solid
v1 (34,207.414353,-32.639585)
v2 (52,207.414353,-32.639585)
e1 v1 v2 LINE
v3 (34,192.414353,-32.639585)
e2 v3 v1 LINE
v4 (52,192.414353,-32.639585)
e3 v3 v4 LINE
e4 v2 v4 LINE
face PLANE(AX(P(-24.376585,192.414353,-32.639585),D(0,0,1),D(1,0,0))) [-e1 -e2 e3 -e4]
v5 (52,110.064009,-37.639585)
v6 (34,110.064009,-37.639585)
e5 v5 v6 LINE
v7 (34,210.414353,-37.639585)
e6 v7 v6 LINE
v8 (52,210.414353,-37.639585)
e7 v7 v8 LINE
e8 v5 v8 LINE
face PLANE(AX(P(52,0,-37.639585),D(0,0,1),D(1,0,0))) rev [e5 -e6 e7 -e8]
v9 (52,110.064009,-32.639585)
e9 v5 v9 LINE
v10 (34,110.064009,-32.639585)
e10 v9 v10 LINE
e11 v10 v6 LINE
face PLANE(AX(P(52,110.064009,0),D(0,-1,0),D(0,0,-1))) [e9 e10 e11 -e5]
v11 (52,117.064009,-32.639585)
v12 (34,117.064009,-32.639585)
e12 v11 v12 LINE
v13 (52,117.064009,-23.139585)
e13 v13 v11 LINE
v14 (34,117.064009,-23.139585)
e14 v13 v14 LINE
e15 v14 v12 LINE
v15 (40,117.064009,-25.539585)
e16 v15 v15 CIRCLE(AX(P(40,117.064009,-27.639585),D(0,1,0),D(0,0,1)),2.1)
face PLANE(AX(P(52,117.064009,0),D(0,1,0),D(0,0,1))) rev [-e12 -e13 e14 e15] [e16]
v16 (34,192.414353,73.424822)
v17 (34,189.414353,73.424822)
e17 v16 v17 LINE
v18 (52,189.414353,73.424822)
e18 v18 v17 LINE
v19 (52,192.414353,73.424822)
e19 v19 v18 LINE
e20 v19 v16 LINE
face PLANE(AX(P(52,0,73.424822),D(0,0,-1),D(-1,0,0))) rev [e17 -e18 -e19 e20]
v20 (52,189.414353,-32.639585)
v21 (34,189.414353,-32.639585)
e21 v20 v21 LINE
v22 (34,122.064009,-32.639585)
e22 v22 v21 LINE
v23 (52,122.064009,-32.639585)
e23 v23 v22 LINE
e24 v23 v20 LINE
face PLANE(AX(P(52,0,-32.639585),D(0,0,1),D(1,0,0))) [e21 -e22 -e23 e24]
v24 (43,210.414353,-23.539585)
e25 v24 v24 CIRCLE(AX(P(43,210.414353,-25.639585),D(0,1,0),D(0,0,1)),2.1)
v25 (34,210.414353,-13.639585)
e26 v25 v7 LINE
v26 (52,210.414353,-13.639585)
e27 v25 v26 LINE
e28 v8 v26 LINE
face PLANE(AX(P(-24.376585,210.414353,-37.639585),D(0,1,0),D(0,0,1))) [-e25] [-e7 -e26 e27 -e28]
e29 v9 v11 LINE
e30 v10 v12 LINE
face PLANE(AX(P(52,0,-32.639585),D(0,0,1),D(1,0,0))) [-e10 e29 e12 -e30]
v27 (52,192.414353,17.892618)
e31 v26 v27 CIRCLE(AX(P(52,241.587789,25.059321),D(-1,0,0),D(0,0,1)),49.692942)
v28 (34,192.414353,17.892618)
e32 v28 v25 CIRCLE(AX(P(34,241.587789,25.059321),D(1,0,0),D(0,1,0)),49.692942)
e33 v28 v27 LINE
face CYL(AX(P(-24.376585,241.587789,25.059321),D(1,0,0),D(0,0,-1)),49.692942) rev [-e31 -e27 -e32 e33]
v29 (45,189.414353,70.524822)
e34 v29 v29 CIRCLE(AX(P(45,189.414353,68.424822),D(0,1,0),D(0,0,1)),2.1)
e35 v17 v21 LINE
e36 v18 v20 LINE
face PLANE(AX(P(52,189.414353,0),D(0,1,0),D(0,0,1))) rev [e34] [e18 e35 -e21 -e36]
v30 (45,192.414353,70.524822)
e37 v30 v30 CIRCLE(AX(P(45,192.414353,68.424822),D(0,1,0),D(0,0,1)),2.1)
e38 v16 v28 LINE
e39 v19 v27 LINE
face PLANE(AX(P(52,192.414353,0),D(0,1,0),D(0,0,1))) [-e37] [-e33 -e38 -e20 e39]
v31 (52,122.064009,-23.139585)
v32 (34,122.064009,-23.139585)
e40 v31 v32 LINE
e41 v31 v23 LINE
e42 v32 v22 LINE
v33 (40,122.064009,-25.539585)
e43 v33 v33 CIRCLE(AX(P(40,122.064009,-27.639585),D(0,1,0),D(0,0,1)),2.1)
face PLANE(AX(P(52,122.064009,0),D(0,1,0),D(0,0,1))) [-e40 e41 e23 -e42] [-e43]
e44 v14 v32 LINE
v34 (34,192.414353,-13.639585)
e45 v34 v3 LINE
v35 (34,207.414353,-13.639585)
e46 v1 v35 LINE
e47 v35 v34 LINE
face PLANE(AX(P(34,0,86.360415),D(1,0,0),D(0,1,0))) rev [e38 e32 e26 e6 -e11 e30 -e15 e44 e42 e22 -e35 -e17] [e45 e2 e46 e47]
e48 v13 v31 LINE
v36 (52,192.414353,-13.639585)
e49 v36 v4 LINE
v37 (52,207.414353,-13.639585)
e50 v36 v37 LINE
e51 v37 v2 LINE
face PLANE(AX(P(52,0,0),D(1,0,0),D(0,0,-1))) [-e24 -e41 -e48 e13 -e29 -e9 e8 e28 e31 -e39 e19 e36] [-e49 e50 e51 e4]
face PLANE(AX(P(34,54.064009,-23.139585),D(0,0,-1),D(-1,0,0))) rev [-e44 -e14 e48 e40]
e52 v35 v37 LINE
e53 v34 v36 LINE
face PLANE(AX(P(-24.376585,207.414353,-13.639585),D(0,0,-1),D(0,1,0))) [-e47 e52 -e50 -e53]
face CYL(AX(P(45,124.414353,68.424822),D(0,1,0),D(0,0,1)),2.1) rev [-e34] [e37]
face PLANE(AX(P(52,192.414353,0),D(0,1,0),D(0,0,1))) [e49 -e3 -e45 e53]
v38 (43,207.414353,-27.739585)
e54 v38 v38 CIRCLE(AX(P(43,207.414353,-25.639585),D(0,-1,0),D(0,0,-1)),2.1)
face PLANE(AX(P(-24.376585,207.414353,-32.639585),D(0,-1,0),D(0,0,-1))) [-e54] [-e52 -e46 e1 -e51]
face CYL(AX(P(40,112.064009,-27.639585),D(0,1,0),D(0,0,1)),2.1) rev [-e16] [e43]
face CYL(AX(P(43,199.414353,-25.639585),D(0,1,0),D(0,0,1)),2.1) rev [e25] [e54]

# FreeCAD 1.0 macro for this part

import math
import FreeCAD as App
import Part
import Sketcher
Q = App.Units.Quantity

doc = App.newDocument("Part")
body = doc.addObject("PartDesign::Body", "Body")
body.AllowCompound = True

sketch1 = body.newObject("Sketcher::SketchObject", "Sketch")
sketch1.AttachmentSupport = (doc.getObject("YZ_Plane"), [""])
sketch1.MapMode = "FlatFace"
sketch1.addGeometry([
    Part.LineSegment(App.Vector(192.4, 73.4, 0), App.Vector(189.4, 73.4, 0)),
    Part.LineSegment(App.Vector(189.4, 73.4, 0), App.Vector(189.4, -32.6, 0)),
    Part.LineSegment(App.Vector(189.4, -32.6, 0), App.Vector(122.1, -32.6, 0)),
    Part.LineSegment(App.Vector(122.1, -32.6, 0), App.Vector(122.1, -22.6, 0)),
    Part.LineSegment(App.Vector(122.1, -22.6, 0), App.Vector(117.1, -22.6, 0)),
    Part.LineSegment(App.Vector(117.1, -22.6, 0), App.Vector(117.1, -32.6, 0)),
    Part.LineSegment(App.Vector(117.1, -32.6, 0), App.Vector(110.1, -32.6, 0)),
    Part.LineSegment(App.Vector(110.1, -32.6, 0), App.Vector(110.1, -37.6, 0)),
    Part.LineSegment(App.Vector(110.1, -37.6, 0), App.Vector(192.4, -37.6, 0)),
    Part.LineSegment(App.Vector(192.4, -37.6, 0), App.Vector(192.4, 73.4, 0)),
], False)
sketch1.addConstraint([
    Sketcher.Constraint("Coincident", 0, 2, 1, 1),
    Sketcher.Constraint("Coincident", 1, 2, 2, 1),
    Sketcher.Constraint("Coincident", 2, 2, 3, 1),
    Sketcher.Constraint("Coincident", 3, 2, 4, 1),
    Sketcher.Constraint("Coincident", 4, 2, 5, 1),
    Sketcher.Constraint("Coincident", 5, 2, 6, 1),
    Sketcher.Constraint("Coincident", 6, 2, 7, 1),
    Sketcher.Constraint("Coincident", 7, 2, 8, 1),
    Sketcher.Constraint("Coincident", 8, 2, 9, 1),
    Sketcher.Constraint("Coincident", 9, 2, 0, 1),
    Sketcher.Constraint("Horizontal", 0),
    Sketcher.Constraint("Vertical", 1),
    Sketcher.Constraint("Horizontal", 2),
    Sketcher.Constraint("Vertical", 3),
    Sketcher.Constraint("Horizontal", 4),
    Sketcher.Constraint("Vertical", 5),
    Sketcher.Constraint("Horizontal", 6),
    Sketcher.Constraint("Vertical", 7),
    Sketcher.Constraint("Horizontal", 8),
    Sketcher.Constraint("Vertical", 9),
    Sketcher.Constraint("Horizontal", 2, 2, 5, 2),
    Sketcher.Constraint("Equal", 4, 7),
    Sketcher.Constraint("DistanceX", 0, 2, 0, 1, Q("3 mm")),
    Sketcher.Constraint("DistanceX", 4, 2, 4, 1, Q("5 mm")),
    Sketcher.Constraint("DistanceX", 6, 2, 6, 1, Q("7 mm")),
    Sketcher.Constraint("DistanceY", 3, 1, 3, 2, Q("10 mm")),
    Sketcher.Constraint("DistanceX", 2, 2, 2, 1, Q("67.350344 mm")),
    Sketcher.Constraint("DistanceY", 1, 2, 1, 1, Q("106.064407 mm")),
    Sketcher.Constraint("DistanceY", -1, 1, 0, 2, Q("73.424822 mm")),
    Sketcher.Constraint("DistanceX", -1, 1, 2, 2, Q("122.064009 mm")),
])
pad1 = body.newObject("PartDesign::Pad", "Pad")
pad1.Profile = sketch1
pad1.Length = 52

sketch2 = body.newObject("Sketcher::SketchObject", "Sketch001")
sketch2.AttachmentSupport = (doc.getObject("XZ_Plane"), [""])
sketch2.MapMode = "FlatFace"
sketch2.AttachmentOffset = App.Placement(App.Vector(0, 0, -122.064009), App.Rotation())
sketch2.addGeometry([
    Part.Circle(App.Vector(6, -27, 0), App.Vector(0, 0, 1), 2.1),
    Part.Circle(App.Vector(46, -27.6, 0), App.Vector(0, 0, 1), 2.1),
], False)
sketch2.addConstraint([
    Sketcher.Constraint("Equal", 0, 1),
    Sketcher.Constraint("Diameter", 0, Q("4.2 mm")),
    Sketcher.Constraint("DistanceX", -1, 1, 0, 3, Q("6 mm")),
    Sketcher.Constraint("DistanceX", -1, 1, 1, 3, Q("46 mm")),
    Sketcher.Constraint("DistanceY", 1, 3, 0, 3, Q("0.59 mm")),
    Sketcher.Constraint("DistanceY", 0, 3, -1, 1, Q("27.049585 mm")),
])
pocket1 = body.newObject("PartDesign::Pocket", "Pocket")
pocket1.Profile = sketch2
pocket1.Length = 52
pocket1.Reversed = True

sketch3 = body.newObject("Sketcher::SketchObject", "Sketch002")
sketch3.AttachmentSupport = (doc.getObject("XZ_Plane"), [""])
sketch3.MapMode = "FlatFace"
sketch3.AttachmentOffset = App.Placement(App.Vector(0, 0, -192.414353), App.Rotation())
sketch3.addGeometry([
    Part.Circle(App.Vector(41, 68.4, 0), App.Vector(0, 0, 1), 2.1),
    Part.Circle(App.Vector(11, 68.4, 0), App.Vector(0, 0, 1), 2.1),
], False)
sketch3.addConstraint([
    Sketcher.Constraint("Equal", 0, 1),
    Sketcher.Constraint("Horizontal", 0, 3, 1, 3),
    Sketcher.Constraint("Diameter", 0, Q("4.2 mm")),
    Sketcher.Constraint("DistanceX", -1, 1, 0, 3, Q("41 mm")),
    Sketcher.Constraint("DistanceX", -1, 1, 1, 3, Q("11 mm")),
    Sketcher.Constraint("DistanceY", -1, 1, 0, 3, Q("68.424822 mm")),
])
pocket2 = body.newObject("PartDesign::Pocket", "Pocket001")
pocket2.Profile = sketch3
pocket2.Length = 52
pocket2.Reversed = True

sketch4 = body.newObject("Sketcher::SketchObject", "Sketch003")
sketch4.AttachmentSupport = (doc.getObject("XY_Plane"), [""])
sketch4.MapMode = "FlatFace"
sketch4.AttachmentOffset = App.Placement(App.Vector(0, 0, -37.639585), App.Rotation())
sketch4.addGeometry([
    Part.LineSegment(App.Vector(34, 192, 0), App.Vector(34, 110, 0)),
    Part.LineSegment(App.Vector(34, 110, 0), App.Vector(18, 110, 0)),
    Part.LineSegment(App.Vector(18, 110, 0), App.Vector(18, 192, 0)),
    Part.LineSegment(App.Vector(18, 192, 0), App.Vector(34, 192, 0)),
], False)
sketch4.addConstraint([
    Sketcher.Constraint("Coincident", 0, 2, 1, 1),
    Sketcher.Constraint("Coincident", 1, 2, 2, 1),
    Sketcher.Constraint("Coincident", 2, 2, 3, 1),
    Sketcher.Constraint("Coincident", 3, 2, 0, 1),
    Sketcher.Constraint("Vertical", 0),
    Sketcher.Constraint("Horizontal", 1),
    Sketcher.Constraint("Vertical", 2),
    Sketcher.Constraint("Horizontal", 3),
    Sketcher.Constraint("DistanceX", 1, 2, 1, 1, Q("16 mm")),
    Sketcher.Constraint("DistanceX", -1, 1, 0, 2, Q("34 mm")),
    Sketcher.Constraint("DistanceY", 0, 2, 0, 1, Q("82.350344 mm")),
    Sketcher.Constraint("DistanceY", -1, 1, 0, 2, Q("110.064009 mm")),
])
pocket3 = body.newObject("PartDesign::Pocket", "Pocket002")
pocket3.Profile = sketch4
pocket3.Length = 124
pocket3.Reversed = True

sketch5 = body.newObject("Sketcher::SketchObject", "Sketch004")
sketch5.AttachmentSupport = (doc.getObject("YZ_Plane"), [""])
sketch5.MapMode = "FlatFace"
sketch5.addGeometry([
    Part.LineSegment(App.Vector(210, -38, 0), App.Vector(192, -38, 0)),
    Part.LineSegment(App.Vector(192, -38, 0), App.Vector(192, -33, 0)),
    Part.LineSegment(App.Vector(192, -33, 0), App.Vector(207, -33, 0)),
    Part.LineSegment(App.Vector(207, -33, 0), App.Vector(207, -14, 0)),
    Part.LineSegment(App.Vector(207, -14, 0), App.Vector(192, -14, 0)),
    Part.LineSegment(App.Vector(192, -14, 0), App.Vector(192, 18, 0)),
    Part.ArcOfCircle(Part.Circle(App.Vector(242, 25, 0), App.Vector(0, 0, 1), 50), math.radians(-172), math.radians(-129)),
    Part.LineSegment(App.Vector(210, -14, 0), App.Vector(210, -38, 0)),
], False)
sketch5.addConstraint([
    Sketcher.Constraint("Coincident", 0, 2, 1, 1),
    Sketcher.Constraint("Coincident", 1, 2, 2, 1),
    Sketcher.Constraint("Coincident", 2, 2, 3, 1),
    Sketcher.Constraint("Coincident", 3, 2, 4, 1),
    Sketcher.Constraint("Coincident", 4, 2, 5, 1),
    Sketcher.Constraint("Coincident", 5, 2, 6, 1),
    Sketcher.Constraint("Coincident", 6, 2, 7, 1),
    Sketcher.Constraint("Coincident", 7, 2, 0, 1),
    Sketcher.Constraint("Horizontal", 0),
    Sketcher.Constraint("Vertical", 1),
    Sketcher.Constraint("Horizontal", 2),
    Sketcher.Constraint("Vertical", 3),
    Sketcher.Constraint("Horizontal", 4),
    Sketcher.Constraint("Vertical", 5),
    Sketcher.Constraint("Vertical", 7),
    Sketcher.Constraint("Horizontal", 4, 2, 6, 2),
    Sketcher.Constraint("Vertical", 1, 2, 4, 2),
    Sketcher.Constraint("DistanceX", 0, 2, 0, 1, Q("18 mm")),
    Sketcher.Constraint("DistanceX", 2, 1, 2, 2, Q("15 mm")),
    Sketcher.Constraint("DistanceY", 1, 1, 1, 2, Q("5 mm")),
    Sketcher.Constraint("DistanceY", 3, 1, 3, 2, Q("19 mm")),
    Sketcher.Constraint("Radius", 6, Q("49.692942 mm")),
    Sketcher.Constraint("DistanceY", 5, 1, 5, 2, Q("31.532203 mm")),
    Sketcher.Constraint("DistanceX", -1, 1, 6, 3, Q("241.587789 mm")),
    Sketcher.Constraint("DistanceY", -1, 1, 6, 3, Q("25.059321 mm")),
])
pad2 = body.newObject("PartDesign::Pad", "Pad001")
pad2.Profile = sketch5
pad2.Length = 18

sketch6 = body.newObject("Sketcher::SketchObject", "Sketch005")
sketch6.AttachmentSupport = (doc.getObject("XZ_Plane"), [""])
sketch6.MapMode = "FlatFace"
sketch6.AttachmentOffset = App.Placement(App.Vector(0, 0, -210.414353), App.Rotation())
sketch6.addGeometry(Part.Circle(App.Vector(9, -25.6, 0), App.Vector(0, 0, 1), 2.1), False)
sketch6.addConstraint([
    Sketcher.Constraint("Diameter", 0, Q("4.2 mm")),
    Sketcher.Constraint("DistanceX", -1, 1, 0, 3, Q("9 mm")),
    Sketcher.Constraint("DistanceY", 0, 3, -1, 1, Q("25.639585 mm")),
])
pocket4 = body.newObject("PartDesign::Pocket", "Pocket003")
pocket4.Profile = sketch6
pocket4.Length = 6
pocket4.Reversed = True

sketch7 = body.newObject("Sketcher::SketchObject", "Sketch006")
sketch7.AttachmentSupport = (doc.getObject("YZ_Plane"), [""])
sketch7.MapMode = "FlatFace"
sketch7.AttachmentOffset = App.Placement(App.Vector(0, 0, 52), App.Rotation())
sketch7.addGeometry([
    Part.LineSegment(App.Vector(192, -33, 0), App.Vector(192, -38, 0)),
    Part.LineSegment(App.Vector(192, -38, 0), App.Vector(210, -38, 0)),
    Part.LineSegment(App.Vector(210, -38, 0), App.Vector(210, -14, 0)),
    Part.ArcOfCircle(Part.Circle(App.Vector(242, 25, 0), App.Vector(0, 0, 1), 50), math.radians(-172), math.radians(-129)),
    Part.LineSegment(App.Vector(192, 18, 0), App.Vector(192, -14, 0)),
    Part.LineSegment(App.Vector(192, -14, 0), App.Vector(207, -14, 0)),
    Part.LineSegment(App.Vector(207, -14, 0), App.Vector(207, -33, 0)),
    Part.LineSegment(App.Vector(207, -33, 0), App.Vector(192, -33, 0)),
], False)
sketch7.addConstraint([
    Sketcher.Constraint("Coincident", 0, 2, 1, 1),
    Sketcher.Constraint("Coincident", 1, 2, 2, 1),
    Sketcher.Constraint("Coincident", 2, 2, 3, 2),
    Sketcher.Constraint("Coincident", 3, 1, 4, 1),
    Sketcher.Constraint("Coincident", 4, 2, 5, 1),
    Sketcher.Constraint("Coincident", 5, 2, 6, 1),
    Sketcher.Constraint("Coincident", 6, 2, 7, 1),
    Sketcher.Constraint("Coincident", 7, 2, 0, 1),
    Sketcher.Constraint("Vertical", 0),
    Sketcher.Constraint("Horizontal", 1),
    Sketcher.Constraint("Vertical", 2),
    Sketcher.Constraint("Vertical", 4),
    Sketcher.Constraint("Horizontal", 5),
    Sketcher.Constraint("Vertical", 6),
    Sketcher.Constraint("Horizontal", 7),
    Sketcher.Constraint("Horizontal", 2, 2, 4, 2),
    Sketcher.Constraint("Vertical", 0, 2, 3, 1),
    Sketcher.Constraint("DistanceX", 1, 1, 1, 2, Q("18 mm")),
    Sketcher.Constraint("DistanceX", 5, 1, 5, 2, Q("15 mm")),
    Sketcher.Constraint("DistanceY", 0, 2, 0, 1, Q("5 mm")),
    Sketcher.Constraint("DistanceY", 2, 1, 2, 2, Q("24 mm")),
    Sketcher.Constraint("Radius", 3, Q("49.692942 mm")),
    Sketcher.Constraint("DistanceY", 4, 2, 4, 1, Q("31.532203 mm")),
    Sketcher.Constraint("DistanceX", -1, 1, 3, 3, Q("241.587789 mm")),
    Sketcher.Constraint("DistanceY", -1, 1, 3, 3, Q("25.059321 mm")),
])
pad3 = body.newObject("PartDesign::Pad", "Pad002")
pad3.Profile = sketch7
pad3.Length = 18
pad3.Reversed = True

sketch8 = body.newObject("Sketcher::SketchObject", "Sketch007")
sketch8.AttachmentSupport = (doc.getObject("XZ_Plane"), [""])
sketch8.MapMode = "FlatFace"
sketch8.AttachmentOffset = App.Placement(App.Vector(0, 0, -210.414353), App.Rotation())
sketch8.addGeometry(Part.Circle(App.Vector(43, -25.6, 0), App.Vector(0, 0, 1), 2.1), False)
sketch8.addConstraint([
    Sketcher.Constraint("Diameter", 0, Q("4.2 mm")),
    Sketcher.Constraint("DistanceX", -1, 1, 0, 3, Q("43 mm")),
    Sketcher.Constraint("DistanceY", 0, 3, -1, 1, Q("25.639585 mm")),
])
pocket5 = body.newObject("PartDesign::Pocket", "Pocket004")
pocket5.Profile = sketch8
pocket5.Length = 11
pocket5.Reversed = True

sketch9 = body.newObject("Sketcher::SketchObject", "Sketch008")
sketch9.AttachmentSupport = (doc.getObject("XZ_Plane"), [""])
sketch9.MapMode = "FlatFace"
sketch9.AttachmentOffset = App.Placement(App.Vector(0, 0, -210.414353), App.Rotation())
sketch9.addGeometry([
    Part.LineSegment(App.Vector(-6, -42, 0), App.Vector(-6, 77, 0)),
    Part.LineSegment(App.Vector(-6, 77, 0), App.Vector(25, 77, 0)),
    Part.LineSegment(App.Vector(25, 77, 0), App.Vector(25, -42, 0)),
    Part.LineSegment(App.Vector(25, -42, 0), App.Vector(-6, -42, 0)),
], False)
sketch9.addConstraint([
    Sketcher.Constraint("Coincident", 0, 2, 1, 1),
    Sketcher.Constraint("Coincident", 1, 2, 2, 1),
    Sketcher.Constraint("Coincident", 2, 2, 3, 1),
    Sketcher.Constraint("Coincident", 3, 2, 0, 1),
    Sketcher.Constraint("Vertical", 0),
    Sketcher.Constraint("Horizontal", 1),
    Sketcher.Constraint("Vertical", 2),
    Sketcher.Constraint("Horizontal", 3),
    Sketcher.Constraint("DistanceY", 0, 1, 0, 2, Q("118.81058 mm")),
    Sketcher.Constraint("DistanceX", 1, 1, 1, 2, Q("30.758927 mm")),
    Sketcher.Constraint("DistanceX", -1, 1, 1, 2, Q("24.522652 mm")),
    Sketcher.Constraint("DistanceY", -1, 1, 0, 2, Q("77.080375 mm")),
])
pocket6 = body.newObject("PartDesign::Pocket", "Pocket005")
pocket6.Profile = sketch9
pocket6.Length = 134
pocket6.Reversed = True

sketch10 = body.newObject("Sketcher::SketchObject", "Sketch009")
sketch10.AttachmentSupport = (doc.getObject("XZ_Plane"), [""])
sketch10.MapMode = "FlatFace"
sketch10.AttachmentOffset = App.Placement(App.Vector(0, 0, -122.064009), App.Rotation())
sketch10.addGeometry([
    Part.LineSegment(App.Vector(34, -33, 0), App.Vector(34, -23, 0)),
    Part.LineSegment(App.Vector(34, -23, 0), App.Vector(52, -23, 0)),
    Part.LineSegment(App.Vector(52, -23, 0), App.Vector(52, -33, 0)),
    Part.LineSegment(App.Vector(52, -33, 0), App.Vector(34, -33, 0)),
], False)
sketch10.addConstraint([
    Sketcher.Constraint("Coincident", 0, 2, 1, 1),
    Sketcher.Constraint("Coincident", 1, 2, 2, 1),
    Sketcher.Constraint("Coincident", 2, 2, 3, 1),
    Sketcher.Constraint("Coincident", 3, 2, 0, 1),
    Sketcher.Constraint("Vertical", 0),
    Sketcher.Constraint("Horizontal", 1),
    Sketcher.Constraint("Vertical", 2),
    Sketcher.Constraint("Horizontal", 3),
    Sketcher.Constraint("DistanceX", 1, 1, 1, 2, Q("18 mm")),
    Sketcher.Constraint("DistanceY", 0, 1, 0, 2, Q("10 mm")),
    Sketcher.Constraint("DistanceX", -1, 1, 0, 2, Q("34 mm")),
    Sketcher.Constraint("DistanceY", 0, 2, -1, 1, Q("22.639585 mm")),
])
pad4 = body.newObject("PartDesign::Pad", "Pad003")
pad4.Profile = sketch10
pad4.Length = 5

sketch11 = body.newObject("Sketcher::SketchObject", "Sketch010")
sketch11.AttachmentSupport = (doc.getObject("XZ_Plane"), [""])
sketch11.MapMode = "FlatFace"
sketch11.AttachmentOffset = App.Placement(App.Vector(0, 0, -122.064009), App.Rotation())
sketch11.addGeometry(Part.Circle(App.Vector(40, -27, 0), App.Vector(0, 0, 1), 2.1), False)
sketch11.addConstraint([
    Sketcher.Constraint("Diameter", 0, Q("4.2 mm")),
    Sketcher.Constraint("DistanceX", -1, 1, 0, 3, Q("40 mm")),
    Sketcher.Constraint("DistanceY", 0, 3, -1, 1, Q("27.049585 mm")),
])
pocket7 = body.newObject("PartDesign::Pocket", "Pocket006")
pocket7.Profile = sketch11
pocket7.Length = 10
pocket7.Reversed = True

sketch12 = body.newObject("Sketcher::SketchObject", "Sketch011")
sketch12.AttachmentSupport = (doc.getObject("XZ_Plane"), [""])
sketch12.MapMode = "FlatFace"
sketch12.AttachmentOffset = App.Placement(App.Vector(0, 0, -192.414353), App.Rotation())
sketch12.addGeometry(Part.Circle(App.Vector(41, 68.4, 0), App.Vector(0, 0, 1), 2.1), False)
sketch12.addConstraint([
    Sketcher.Constraint("Diameter", 0, Q("4.2 mm")),
    Sketcher.Constraint("DistanceX", -1, 1, 0, 3, Q("41 mm")),
    Sketcher.Constraint("DistanceY", -1, 1, 0, 3, Q("68.424822 mm")),
])
pad5 = body.newObject("PartDesign::Pad", "Pad004")
pad5.Profile = sketch12
pad5.Length = 3

sketch13 = body.newObject("Sketcher::SketchObject", "Sketch012")
sketch13.AttachmentSupport = (doc.getObject("XZ_Plane"), [""])
sketch13.MapMode = "FlatFace"
sketch13.AttachmentOffset = App.Placement(App.Vector(0, 0, -192.414353), App.Rotation())
sketch13.addGeometry(Part.Circle(App.Vector(45, 68.4, 0), App.Vector(0, 0, 1), 2.1), False)
sketch13.addConstraint([
    Sketcher.Constraint("Diameter", 0, Q("4.2 mm")),
    Sketcher.Constraint("DistanceX", -1, 1, 0, 3, Q("45 mm")),
    Sketcher.Constraint("DistanceY", -1, 1, 0, 3, Q("68.424822 mm")),
])
pocket8 = body.newObject("PartDesign::Pocket", "Pocket007")
pocket8.Profile = sketch13
pocket8.Length = 68
pocket8.Reversed = True

sketch14 = body.newObject("Sketcher::SketchObject", "Sketch013")
sketch14.AttachmentSupport = (doc.getObject("XZ_Plane"), [""])
sketch14.MapMode = "FlatFace"
sketch14.AttachmentOffset = App.Placement(App.Vector(0, 0, -122.064009), App.Rotation())
sketch14.addGeometry([
    Part.LineSegment(App.Vector(34, -23.1, 0), App.Vector(34, -22.6, 0)),
    Part.LineSegment(App.Vector(34, -22.6, 0), App.Vector(52, -22.6, 0)),
    Part.LineSegment(App.Vector(52, -22.6, 0), App.Vector(52, -23.1, 0)),
    Part.LineSegment(App.Vector(52, -23.1, 0), App.Vector(34, -23.1, 0)),
], False)
sketch14.addConstraint([
    Sketcher.Constraint("Coincident", 0, 2, 1, 1),
    Sketcher.Constraint("Coincident", 1, 2, 2, 1),
    Sketcher.Constraint("Coincident", 2, 2, 3, 1),
    Sketcher.Constraint("Coincident", 3, 2, 0, 1),
    Sketcher.Constraint("Vertical", 0),
    Sketcher.Constraint("Horizontal", 1),
    Sketcher.Constraint("Vertical", 2),
    Sketcher.Constraint("Horizontal", 3),
    Sketcher.Constraint("DistanceX", 1, 1, 1, 2, Q("18 mm")),
    Sketcher.Constraint("DistanceY", 0, 1, 0, 2, Q("0.5 mm")),
    Sketcher.Constraint("DistanceX", -1, 1, 0, 2, Q("34 mm")),
    Sketcher.Constraint("DistanceY", 0, 2, -1, 1, Q("22.639585 mm")),
])
pocket9 = body.newObject("PartDesign::Pocket", "Pocket008")
pocket9.Profile = sketch14
pocket9.Length = 68
pocket9.Reversed = True

sketch15 = body.newObject("Sketcher::SketchObject", "Sketch014")
sketch15.AttachmentSupport = (doc.getObject("XZ_Plane"), [""])
sketch15.MapMode = "FlatFace"
sketch15.AttachmentOffset = App.Placement(App.Vector(0, 0, -122.064009), App.Rotation())
sketch15.addGeometry([
    Part.LineSegment(App.Vector(37, -30, 0), App.Vector(37, -25, 0)),
    Part.LineSegment(App.Vector(37, -25, 0), App.Vector(44, -25, 0)),
    Part.LineSegment(App.Vector(44, -25, 0), App.Vector(44, -30, 0)),
    Part.LineSegment(App.Vector(44, -30, 0), App.Vector(37, -30, 0)),
], False)
sketch15.addConstraint([
    Sketcher.Constraint("Coincident", 0, 2, 1, 1),
    Sketcher.Constraint("Coincident", 1, 2, 2, 1),
    Sketcher.Constraint("Coincident", 2, 2, 3, 1),
    Sketcher.Constraint("Coincident", 3, 2, 0, 1),
    Sketcher.Constraint("Vertical", 0),
    Sketcher.Constraint("Horizontal", 1),
    Sketcher.Constraint("Vertical", 2),
    Sketcher.Constraint("Horizontal", 3),
    Sketcher.Constraint("DistanceX", 1, 1, 1, 2, Q("7.063819 mm")),
    Sketcher.Constraint("DistanceY", 0, 1, 0, 2, Q("5.57284 mm")),
    Sketcher.Constraint("DistanceX", -1, 1, 0, 2, Q("36.803954 mm")),
    Sketcher.Constraint("DistanceY", 0, 2, -1, 1, Q("24.508256 mm")),
])
pad6 = body.newObject("PartDesign::Pad", "Pad005")
pad6.Profile = sketch15
pad6.Length = 5

sketch16 = body.newObject("Sketcher::SketchObject", "Sketch015")
sketch16.AttachmentSupport = (doc.getObject("XZ_Plane"), [""])
sketch16.MapMode = "FlatFace"
sketch16.AttachmentOffset = App.Placement(App.Vector(0, 0, -122.064009), App.Rotation())
sketch16.addGeometry(Part.Circle(App.Vector(40, -27.6, 0), App.Vector(0, 0, 1), 2.1), False)
sketch16.addConstraint([
    Sketcher.Constraint("Diameter", 0, Q("4.2 mm")),
    Sketcher.Constraint("DistanceX", -1, 1, 0, 3, Q("40 mm")),
    Sketcher.Constraint("DistanceY", 0, 3, -1, 1, Q("27.639585 mm")),
])
pocket10 = body.newObject("PartDesign::Pocket", "Pocket009")
pocket10.Profile = sketch16
pocket10.Length = 10
pocket10.Reversed = True

doc.recompute()
